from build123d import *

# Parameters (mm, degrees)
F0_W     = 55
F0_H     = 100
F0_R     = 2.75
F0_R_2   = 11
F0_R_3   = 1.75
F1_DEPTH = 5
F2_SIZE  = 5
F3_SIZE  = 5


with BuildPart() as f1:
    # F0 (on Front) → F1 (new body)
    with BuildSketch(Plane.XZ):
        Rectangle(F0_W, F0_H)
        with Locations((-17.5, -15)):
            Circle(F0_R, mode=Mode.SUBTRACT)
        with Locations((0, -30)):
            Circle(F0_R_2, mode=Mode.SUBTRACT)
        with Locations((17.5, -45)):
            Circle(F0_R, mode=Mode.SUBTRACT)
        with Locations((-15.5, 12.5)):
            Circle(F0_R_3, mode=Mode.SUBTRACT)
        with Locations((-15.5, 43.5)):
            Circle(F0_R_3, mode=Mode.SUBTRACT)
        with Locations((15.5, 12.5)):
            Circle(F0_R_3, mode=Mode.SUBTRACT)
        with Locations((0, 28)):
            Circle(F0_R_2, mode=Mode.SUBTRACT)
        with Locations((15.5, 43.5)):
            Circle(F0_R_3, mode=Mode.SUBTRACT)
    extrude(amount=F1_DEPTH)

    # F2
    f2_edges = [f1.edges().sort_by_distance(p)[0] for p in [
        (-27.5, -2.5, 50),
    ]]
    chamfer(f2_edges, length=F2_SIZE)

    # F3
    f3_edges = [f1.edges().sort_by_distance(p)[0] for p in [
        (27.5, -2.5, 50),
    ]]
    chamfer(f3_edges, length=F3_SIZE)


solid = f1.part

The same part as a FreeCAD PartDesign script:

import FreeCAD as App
import Part
import Sketcher
from FreeCAD import Vector
Q = App.Units.Quantity


def edges_at(feature, points):
    """Names of the edges that pass closest to the given points."""
    edges = feature.Shape.Edges
    near = lambda p: min(range(len(edges)), key=lambda i: edges[i].distToShape(Part.Vertex(*p))[0])
    return sorted({f"Edge{near(p) + 1}" for p in points})


def add_polygon(sketch, points):
    """Adds a closed chain of lines whose ends are joined by coincident constraints."""
    first, n = sketch.GeometryCount, len(points)
    for a, b in zip(points, points[1:] + points[:1]):
        sketch.addGeometry(Part.LineSegment(App.Vector(*a, 0), App.Vector(*b, 0)), False)
    for i in range(n):
        sketch.addConstraint(Sketcher.Constraint("Coincident", first + i, 2, first + (i + 1) % n, 1))

doc = App.newDocument("Part")
body = doc.addObject("PartDesign::Body", "Body")

# Sketch on XZ plane
sketch1 = body.newObject("Sketcher::SketchObject", "Sketch")
sketch1.AttachmentSupport = (doc.getObject("XZ_Plane"), [""])
sketch1.MapMode = "FlatFace"
add_polygon(sketch1, [(-27.5, 50), (-27.5, -50), (27.5, -50), (27.5, 50)])  # lines 0-3
sketch1.addGeometry(Part.Circle(Vector(-17.5, -15, 0), Vector(0, 0, 1), 2.8), False)  # 4
sketch1.addGeometry(Part.Circle(Vector(0, -30, 0), Vector(0, 0, 1), 11), False)  # 5
sketch1.addGeometry(Part.Circle(Vector(17.5, -45, 0), Vector(0, 0, 1), 2.8), False)  # 6
sketch1.addGeometry(Part.Circle(Vector(-15.5, 12.5, 0), Vector(0, 0, 1), 1.8), False)  # 7
sketch1.addGeometry(Part.Circle(Vector(-15.5, 43.5, 0), Vector(0, 0, 1), 1.8), False)  # 8
sketch1.addGeometry(Part.Circle(Vector(15.5, 12.5, 0), Vector(0, 0, 1), 1.8), False)  # 9
sketch1.addGeometry(Part.Circle(Vector(0, 28, 0), Vector(0, 0, 1), 11), False)  # 10
sketch1.addGeometry(Part.Circle(Vector(15.5, 43.5, 0), Vector(0, 0, 1), 1.8), False)  # 11
sketch1.addConstraint(Sketcher.Constraint("Vertical", 0))
sketch1.addConstraint(Sketcher.Constraint("Horizontal", 1))
sketch1.addConstraint(Sketcher.Constraint("Vertical", 2))
sketch1.addConstraint(Sketcher.Constraint("Horizontal", 3))
sketch1.addConstraint(Sketcher.Constraint("Equal", 4, 6))
sketch1.addConstraint(Sketcher.Constraint("Equal", 7, 8))
sketch1.addConstraint(Sketcher.Constraint("Equal", 8, 9))
sketch1.addConstraint(Sketcher.Constraint("Equal", 5, 10))
sketch1.addConstraint(Sketcher.Constraint("Equal", 9, 11))
sketch1.addConstraint(Sketcher.Constraint("Symmetric", 0, 2, 2, 2, -1, 1))
sketch1.addConstraint(Sketcher.Constraint("Symmetric", 7, 3, 9, 3, -2))
sketch1.addConstraint(Sketcher.Constraint("Symmetric", 8, 3, 11, 3, -2))
sketch1.addConstraint(Sketcher.Constraint("PointOnObject", 5, 3, -2))
sketch1.addConstraint(Sketcher.Constraint("PointOnObject", 10, 3, -2))
sketch1.addConstraint(Sketcher.Constraint("Vertical", 7, 3, 8, 3))
sketch1.addConstraint(Sketcher.Constraint("Diameter", 5, Q("22 mm")))
sketch1.addConstraint(Sketcher.Constraint("Diameter", 4, Q("5.5 mm")))
sketch1.addConstraint(Sketcher.Constraint("Diameter", 7, Q("3.5 mm")))
sketch1.addConstraint(Sketcher.Constraint("DistanceX", 1, 1, 1, 2, Q("55 mm")))
sketch1.addConstraint(Sketcher.Constraint("DistanceY", 0, 2, 0, 1, Q("100 mm")))
sketch1.addConstraint(Sketcher.Constraint("DistanceY", 4, 3, -1, 1, Q("15 mm")))
sketch1.addConstraint(Sketcher.Constraint("DistanceY", 5, 3, -1, 1, Q("30 mm")))
sketch1.addConstraint(Sketcher.Constraint("DistanceY", 6, 3, -1, 1, Q("45 mm")))
sketch1.addConstraint(Sketcher.Constraint("DistanceY", -1, 1, 10, 3, Q("28 mm")))
sketch1.addConstraint(Sketcher.Constraint("DistanceX", 4, 3, 6, 3, Q("35 mm")))
sketch1.addConstraint(Sketcher.Constraint("DistanceX", 4, 3, 7, 3, Q("2 mm")))
sketch1.addConstraint(Sketcher.Constraint("DistanceY", 7, 3, 8, 3, Q("31 mm")))
sketch1.addConstraint(Sketcher.Constraint("DistanceX", 7, 3, 9, 3, Q("31 mm")))
sketch1.addConstraint(Sketcher.Constraint("DistanceY", -1, 1, 7, 3, Q("12.5 mm")))
pad1 = body.newObject("PartDesign::Pad", "Pad")
pad1.Profile = sketch1
pad1.Length = 5
doc.recompute()

chamfer = body.newObject("PartDesign::Chamfer", "Chamfer")
chamfer.Base = (pad1, edges_at(pad1, [(-27.5, -2.5, 50)]))
chamfer.Size = 5
doc.recompute()

chamfer2 = body.newObject("PartDesign::Chamfer", "Chamfer001")
chamfer2.Base = (chamfer, edges_at(chamfer, [(27.5, -2.5, 50)]))
chamfer2.Size = 5

doc.recompute()
